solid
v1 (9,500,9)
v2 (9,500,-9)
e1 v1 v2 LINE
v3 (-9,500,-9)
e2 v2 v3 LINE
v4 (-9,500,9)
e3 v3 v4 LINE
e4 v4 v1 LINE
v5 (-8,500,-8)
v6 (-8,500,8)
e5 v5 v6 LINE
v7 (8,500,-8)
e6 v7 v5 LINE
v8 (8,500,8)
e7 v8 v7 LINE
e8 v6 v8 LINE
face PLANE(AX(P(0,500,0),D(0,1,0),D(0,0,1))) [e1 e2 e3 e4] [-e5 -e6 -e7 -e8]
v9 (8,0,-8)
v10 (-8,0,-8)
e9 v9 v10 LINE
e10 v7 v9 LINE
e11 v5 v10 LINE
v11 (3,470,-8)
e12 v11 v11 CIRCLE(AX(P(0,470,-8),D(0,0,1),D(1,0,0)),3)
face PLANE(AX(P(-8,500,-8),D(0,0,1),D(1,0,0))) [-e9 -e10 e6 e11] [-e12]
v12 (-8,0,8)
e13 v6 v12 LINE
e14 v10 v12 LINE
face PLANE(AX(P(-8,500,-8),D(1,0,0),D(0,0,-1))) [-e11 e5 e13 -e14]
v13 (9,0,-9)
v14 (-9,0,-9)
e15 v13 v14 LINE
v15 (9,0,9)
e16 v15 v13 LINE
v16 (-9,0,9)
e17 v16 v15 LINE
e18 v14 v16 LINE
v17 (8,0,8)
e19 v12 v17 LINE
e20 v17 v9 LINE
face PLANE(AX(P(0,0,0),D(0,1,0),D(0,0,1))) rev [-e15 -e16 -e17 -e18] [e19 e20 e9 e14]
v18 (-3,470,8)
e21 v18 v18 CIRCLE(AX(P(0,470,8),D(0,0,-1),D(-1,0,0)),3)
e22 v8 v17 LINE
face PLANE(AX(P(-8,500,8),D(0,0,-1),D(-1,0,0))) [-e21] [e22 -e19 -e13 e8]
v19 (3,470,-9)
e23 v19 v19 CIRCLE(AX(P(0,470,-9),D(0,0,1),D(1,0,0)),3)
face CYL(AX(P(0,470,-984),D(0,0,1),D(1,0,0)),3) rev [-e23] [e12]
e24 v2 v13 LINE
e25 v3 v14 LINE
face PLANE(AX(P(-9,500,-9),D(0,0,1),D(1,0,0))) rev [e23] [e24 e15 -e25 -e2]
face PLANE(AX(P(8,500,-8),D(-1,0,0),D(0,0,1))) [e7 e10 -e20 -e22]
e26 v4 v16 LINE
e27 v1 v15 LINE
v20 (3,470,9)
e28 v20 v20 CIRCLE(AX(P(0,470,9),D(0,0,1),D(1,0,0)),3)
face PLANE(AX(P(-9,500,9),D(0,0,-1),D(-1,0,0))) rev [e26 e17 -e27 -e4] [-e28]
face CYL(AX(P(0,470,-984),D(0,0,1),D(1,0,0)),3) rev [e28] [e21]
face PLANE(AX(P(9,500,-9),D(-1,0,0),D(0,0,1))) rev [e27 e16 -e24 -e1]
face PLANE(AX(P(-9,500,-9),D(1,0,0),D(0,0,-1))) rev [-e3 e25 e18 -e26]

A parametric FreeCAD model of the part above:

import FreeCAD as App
import Part
import Sketcher
from FreeCAD import Vector

doc = App.newDocument("Part")
body = doc.addObject("PartDesign::Body", "Body")

sketch1 = doc.addObject("Sketcher::SketchObject", "Sketch")
body.addObject(sketch1)
sketch1.AttachmentSupport = (doc.XZ_Plane, [""])
sketch1.MapMode = "FlatFace"
sketch1.addGeometry([
    Part.LineSegment(Vector(-9, -9, 0), Vector(-9, 9, 0)),
    Part.LineSegment(Vector(-9, 9, 0), Vector(9, 9, 0)),
    Part.LineSegment(Vector(9, 9, 0), Vector(9, -9, 0)),
    Part.LineSegment(Vector(9, -9, 0), Vector(-9, -9, 0)),
    Part.LineSegment(Vector(8, 8, 0), Vector(-8, 8, 0)),
    Part.LineSegment(Vector(-8, 8, 0), Vector(-8, -8, 0)),
    Part.LineSegment(Vector(-8, -8, 0), Vector(8, -8, 0)),
    Part.LineSegment(Vector(8, -8, 0), Vector(8, 8, 0)),
], False)
sketch1.addConstraint([
    Sketcher.Constraint("Coincident", 0, 2, 1, 1),
    Sketcher.Constraint("Coincident", 1, 2, 2, 1),
    Sketcher.Constraint("Coincident", 2, 2, 3, 1),
    Sketcher.Constraint("Coincident", 3, 2, 0, 1),
    Sketcher.Constraint("Coincident", 4, 2, 5, 1),
    Sketcher.Constraint("Coincident", 5, 2, 6, 1),
    Sketcher.Constraint("Coincident", 6, 2, 7, 1),
    Sketcher.Constraint("Coincident", 7, 2, 4, 1),
    Sketcher.Constraint("Vertical", 0),
    Sketcher.Constraint("Horizontal", 1),
    Sketcher.Constraint("Vertical", 2),
    Sketcher.Constraint("Horizontal", 3),
    Sketcher.Constraint("Horizontal", 4),
    Sketcher.Constraint("Vertical", 5),
    Sketcher.Constraint("Horizontal", 6),
    Sketcher.Constraint("Vertical", 7),
    Sketcher.Constraint("Symmetric", 0, 2, 2, 2, -1, 1),
    Sketcher.Constraint("Symmetric", 4, 2, 6, 2, -1, 1),
    Sketcher.Constraint("Equal", 3, 0),
    Sketcher.Constraint("Equal", 6, 5),
    Sketcher.Constraint("DistanceX", 1, 1, 1, 2, 18.0),
    Sketcher.Constraint("DistanceX", 4, 2, 4, 1, 16.0),
])
pad1 = doc.addObject("PartDesign::Pad", "Pad")
body.addObject(pad1)
pad1.Profile = sketch1
pad1.Length = 500
pad1.Reversed = True

sketch2 = doc.addObject("Sketcher::SketchObject", "Sketch001")
body.addObject(sketch2)
sketch2.AttachmentSupport = (doc.XY_Plane, [""])
sketch2.MapMode = "FlatFace"
sketch2.AttachmentOffset = App.Placement(Vector(0, 0, 9), App.Rotation())
sketch2.addGeometry(Part.Circle(Vector(0, 470, 0), Vector(0, 0, 1), 3), False)
sketch2.addConstraint([
    Sketcher.Constraint("PointOnObject", 0, 3, -2),
    Sketcher.Constraint("Diameter", 0, 6.0),
    Sketcher.Constraint("DistanceY", -1, 1, 0, 3, 470.0),
])
pocket1 = doc.addObject("PartDesign::Pocket", "Pocket")
body.addObject(pocket1)
pocket1.Profile = sketch2
pocket1.Length = 993

doc.recompute()
